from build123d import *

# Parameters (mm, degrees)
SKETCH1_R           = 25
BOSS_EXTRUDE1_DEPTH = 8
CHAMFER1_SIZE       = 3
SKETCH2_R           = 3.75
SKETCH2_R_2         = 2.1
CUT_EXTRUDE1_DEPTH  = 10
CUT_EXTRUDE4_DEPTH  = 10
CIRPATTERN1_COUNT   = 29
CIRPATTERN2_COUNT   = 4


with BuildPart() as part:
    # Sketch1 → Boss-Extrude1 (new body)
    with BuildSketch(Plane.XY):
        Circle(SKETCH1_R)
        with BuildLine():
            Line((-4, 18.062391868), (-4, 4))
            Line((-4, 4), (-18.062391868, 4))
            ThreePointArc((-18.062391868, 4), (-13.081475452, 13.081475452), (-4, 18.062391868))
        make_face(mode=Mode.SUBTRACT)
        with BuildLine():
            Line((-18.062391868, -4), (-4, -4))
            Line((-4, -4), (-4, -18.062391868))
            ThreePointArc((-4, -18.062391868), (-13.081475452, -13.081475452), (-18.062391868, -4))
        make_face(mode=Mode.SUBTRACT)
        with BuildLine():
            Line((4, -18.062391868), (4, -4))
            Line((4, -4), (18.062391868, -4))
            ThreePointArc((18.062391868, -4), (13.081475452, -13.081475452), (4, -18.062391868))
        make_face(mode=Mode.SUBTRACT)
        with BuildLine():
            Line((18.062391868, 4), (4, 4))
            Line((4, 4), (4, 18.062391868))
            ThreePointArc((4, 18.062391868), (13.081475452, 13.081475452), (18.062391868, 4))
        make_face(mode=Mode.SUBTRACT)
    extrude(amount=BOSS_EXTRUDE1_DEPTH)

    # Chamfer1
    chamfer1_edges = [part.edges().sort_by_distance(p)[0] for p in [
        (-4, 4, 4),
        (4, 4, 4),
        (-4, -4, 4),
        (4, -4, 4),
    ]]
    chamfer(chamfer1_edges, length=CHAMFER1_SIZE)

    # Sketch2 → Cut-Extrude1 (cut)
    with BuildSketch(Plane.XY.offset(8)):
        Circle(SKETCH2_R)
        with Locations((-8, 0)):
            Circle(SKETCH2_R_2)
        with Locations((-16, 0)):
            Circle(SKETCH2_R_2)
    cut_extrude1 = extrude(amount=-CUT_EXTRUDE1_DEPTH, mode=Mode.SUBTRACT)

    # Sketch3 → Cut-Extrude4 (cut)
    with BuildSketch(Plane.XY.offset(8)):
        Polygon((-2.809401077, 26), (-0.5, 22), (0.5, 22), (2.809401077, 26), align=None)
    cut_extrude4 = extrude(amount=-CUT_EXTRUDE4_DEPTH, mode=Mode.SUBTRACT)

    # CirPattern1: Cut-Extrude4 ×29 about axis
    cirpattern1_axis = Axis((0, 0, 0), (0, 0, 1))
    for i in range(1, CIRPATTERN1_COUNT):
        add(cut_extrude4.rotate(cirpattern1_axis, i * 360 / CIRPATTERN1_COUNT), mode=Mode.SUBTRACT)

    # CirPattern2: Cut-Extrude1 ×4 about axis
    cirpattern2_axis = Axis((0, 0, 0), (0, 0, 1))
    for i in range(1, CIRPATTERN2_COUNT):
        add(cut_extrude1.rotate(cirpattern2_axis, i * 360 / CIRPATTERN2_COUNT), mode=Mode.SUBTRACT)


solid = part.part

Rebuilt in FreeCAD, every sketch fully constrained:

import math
import FreeCAD as App
import Part
import Sketcher

V = App.Vector
Q = App.Units.Quantity


def edges_at(feature, points):
    """Names of the edges that pass closest to the given points."""
    edges = feature.Shape.Edges
    near = lambda p: min(range(len(edges)), key=lambda i: edges[i].distToShape(Part.Vertex(*p))[0])
    return sorted({f"Edge{near(p) + 1}" for p in points})

doc = App.newDocument("Part")
body = doc.addObject("PartDesign::Body", "Body")

sketch1 = body.newObject("Sketcher::SketchObject", "Sketch")
sketch1.AttachmentSupport = (doc.getObject("XY_Plane"), [""])
sketch1.MapMode = "FlatFace"
sketch1.addGeometry(Part.Circle(V(0, 0, 0), V(0, 0, 1), 25), False)
sketch1.addGeometry(Part.ArcOfCircle(Part.Circle(V(0, 0, 0), V(0, 0, 1), 18), math.radians(-168), math.radians(-102)), False)
sketch1.addGeometry(Part.LineSegment(V(-18, -4, 0), V(-4, -4, 0)), False)
sketch1.addGeometry(Part.LineSegment(V(-4, -4, 0), V(-4, -18, 0)), False)
sketch1.addGeometry(Part.ArcOfCircle(Part.Circle(V(0, 0, 0), V(0, 0, 1), 18), math.radians(-78), math.radians(-12)), False)
sketch1.addGeometry(Part.LineSegment(V(4, -18, 0), V(4, -4, 0)), False)
sketch1.addGeometry(Part.LineSegment(V(4, -4, 0), V(18, -4, 0)), False)
sketch1.addGeometry(Part.ArcOfCircle(Part.Circle(V(0, 0, 0), V(0, 0, 1), 18), math.radians(102), math.radians(168)), False)
sketch1.addGeometry(Part.LineSegment(V(-4, 18, 0), V(-4, 4, 0)), False)
sketch1.addGeometry(Part.LineSegment(V(-4, 4, 0), V(-18, 4, 0)), False)
sketch1.addGeometry(Part.ArcOfCircle(Part.Circle(V(0, 0, 0), V(0, 0, 1), 18), math.radians(12), math.radians(78)), False)
sketch1.addGeometry(Part.LineSegment(V(18, 4, 0), V(4, 4, 0)), False)
sketch1.addGeometry(Part.LineSegment(V(4, 4, 0), V(4, 18, 0)), False)
sketch1.addConstraint(Sketcher.Constraint("Coincident", 1, 1, 2, 1))
sketch1.addConstraint(Sketcher.Constraint("Coincident", 2, 2, 3, 1))
sketch1.addConstraint(Sketcher.Constraint("Coincident", 3, 2, 1, 2))
sketch1.addConstraint(Sketcher.Constraint("Coincident", 4, 1, 5, 1))
sketch1.addConstraint(Sketcher.Constraint("Coincident", 5, 2, 6, 1))
sketch1.addConstraint(Sketcher.Constraint("Coincident", 6, 2, 4, 2))
sketch1.addConstraint(Sketcher.Constraint("Coincident", 7, 1, 8, 1))
sketch1.addConstraint(Sketcher.Constraint("Coincident", 8, 2, 9, 1))
sketch1.addConstraint(Sketcher.Constraint("Coincident", 9, 2, 7, 2))
sketch1.addConstraint(Sketcher.Constraint("Coincident", 10, 1, 11, 1))
sketch1.addConstraint(Sketcher.Constraint("Coincident", 11, 2, 12, 1))
sketch1.addConstraint(Sketcher.Constraint("Coincident", 12, 2, 10, 2))
sketch1.addConstraint(Sketcher.Constraint("Horizontal", 2))
sketch1.addConstraint(Sketcher.Constraint("Vertical", 3))
sketch1.addConstraint(Sketcher.Constraint("Vertical", 5))
sketch1.addConstraint(Sketcher.Constraint("Horizontal", 6))
sketch1.addConstraint(Sketcher.Constraint("Vertical", 8))
sketch1.addConstraint(Sketcher.Constraint("Horizontal", 9))
sketch1.addConstraint(Sketcher.Constraint("Horizontal", 11))
sketch1.addConstraint(Sketcher.Constraint("Vertical", 12))
sketch1.addConstraint(Sketcher.Constraint("Coincident", 0, 3, -1, 1))
sketch1.addConstraint(Sketcher.Constraint("Coincident", 1, 3, -1, 1))
sketch1.addConstraint(Sketcher.Constraint("Coincident", 4, 3, -1, 1))
sketch1.addConstraint(Sketcher.Constraint("Coincident", 7, 3, -1, 1))
sketch1.addConstraint(Sketcher.Constraint("Coincident", 10, 3, -1, 1))
sketch1.addConstraint(Sketcher.Constraint("Equal", 1, 4))
sketch1.addConstraint(Sketcher.Constraint("Equal", 4, 7))
sketch1.addConstraint(Sketcher.Constraint("Equal", 7, 10))
sketch1.addConstraint(Sketcher.Constraint("Symmetric", 5, 2, 8, 2, -1, 1))
sketch1.addConstraint(Sketcher.Constraint("Symmetric", 2, 2, 11, 2, -1, 1))
sketch1.addConstraint(Sketcher.Constraint("Symmetric", 2, 2, 5, 2, -2))
sketch1.addConstraint(Sketcher.Constraint("Equal", 11, 3))
sketch1.addConstraint(Sketcher.Constraint("Diameter", 0, 50.0))
sketch1.addConstraint(Sketcher.Constraint("Radius", 1, 18.5))
sketch1.addConstraint(Sketcher.Constraint("DistanceY", 1, 1, -1, 1, 4.0))
pad1 = body.newObject("PartDesign::Pad", "Pad")
pad1.Profile = sketch1
pad1.Length = 8
doc.recompute()

chamfer = body.newObject("PartDesign::Chamfer", "Chamfer")
chamfer.Base = (pad1, edges_at(pad1, [
    (-4, 4, 4),
    (4, 4, 4),
    (-4, -4, 4),
    (4, -4, 4),
]))
chamfer.Size = 3

sketch2 = body.newObject("Sketcher::SketchObject", "Sketch001")
sketch2.AttachmentSupport = (doc.getObject("XY_Plane"), [""])
sketch2.MapMode = "FlatFace"
sketch2.AttachmentOffset = App.Placement(V(0, 0, 8), App.Rotation())
sketch2.addGeometry(Part.Circle(V(0, 0, 0), V(0, 0, 1), 3.8), False)
sketch2.addGeometry(Part.Circle(V(-8, 0, 0), V(0, 0, 1), 2.1), False)
sketch2.addGeometry(Part.Circle(V(-16, 0, 0), V(0, 0, 1), 2.1), False)
sketch2.addConstraint(Sketcher.Constraint("Coincident", 0, 3, -1, 1))
sketch2.addConstraint(Sketcher.Constraint("Equal", 1, 2))
sketch2.addConstraint(Sketcher.Constraint("PointOnObject", 1, 3, -1))
sketch2.addConstraint(Sketcher.Constraint("PointOnObject", 2, 3, -1))
sketch2.addConstraint(Sketcher.Constraint("Diameter", 0, 7.5))
sketch2.addConstraint(Sketcher.Constraint("Diameter", 1, 4.2))
sketch2.addConstraint(Sketcher.Constraint("DistanceX", 1, 3, -1, 1, 8.0))
sketch2.addConstraint(Sketcher.Constraint("DistanceX", 2, 3, -1, 1, 16.0))
pocket1 = body.newObject("PartDesign::Pocket", "Pocket")
pocket1.Profile = sketch2
pocket1.Length = 10

sketch3 = body.newObject("Sketcher::SketchObject", "Sketch002")
sketch3.AttachmentSupport = (doc.getObject("XY_Plane"), [""])
sketch3.MapMode = "FlatFace"
sketch3.AttachmentOffset = App.Placement(V(0, 0, 8), App.Rotation())
sketch3.addGeometry(Part.LineSegment(V(-2.8, 26, 0), V(-0.5, 22, 0)), False)
sketch3.addGeometry(Part.LineSegment(V(-0.5, 22, 0), V(0.5, 22, 0)), False)
sketch3.addGeometry(Part.LineSegment(V(0.5, 22, 0), V(2.8, 26, 0)), False)
sketch3.addGeometry(Part.LineSegment(V(2.8, 26, 0), V(-2.8, 26, 0)), False)
sketch3.addConstraint(Sketcher.Constraint("Coincident", 0, 2, 1, 1))
sketch3.addConstraint(Sketcher.Constraint("Coincident", 1, 2, 2, 1))
sketch3.addConstraint(Sketcher.Constraint("Coincident", 2, 2, 3, 1))
sketch3.addConstraint(Sketcher.Constraint("Coincident", 3, 2, 0, 1))
sketch3.addConstraint(Sketcher.Constraint("Horizontal", 1))
sketch3.addConstraint(Sketcher.Constraint("Horizontal", 3))
sketch3.addConstraint(Sketcher.Constraint("Equal", 0, 2))
sketch3.addConstraint(Sketcher.Constraint("DistanceX", 1, 1, 1, 2, 1.0))
sketch3.addConstraint(Sketcher.Constraint("Angle", 0, Q("-60 deg")))
sketch3.addConstraint(Sketcher.Constraint("DistanceY", -1, 1, 0, 2, 22.0))
sketch3.addConstraint(Sketcher.Constraint("DistanceY", -1, 1, 2, 2, 26.0))
sketch3.addConstraint(Sketcher.Constraint("DistanceX", 0, 2, -1, 1, 0.5))
pocket2 = body.newObject("PartDesign::Pocket", "Pocket001")
pocket2.Profile = sketch3
pocket2.Length = 10
doc.recompute()

polarpattern = body.newObject("PartDesign::PolarPattern", "PolarPattern")
polarpattern.Originals = [pocket2]
polarpattern.Axis = (doc.getObject("Z_Axis"), [""])
polarpattern.Angle = 360
polarpattern.Occurrences = 29
body.Tip = polarpattern
doc.recompute()

polarpattern2 = body.newObject("PartDesign::PolarPattern", "PolarPattern001")
polarpattern2.Originals = [pocket1]
polarpattern2.Axis = (doc.getObject("Z_Axis"), [""])
polarpattern2.Angle = 360
polarpattern2.Occurrences = 4
body.Tip = polarpattern2

doc.recompute()
